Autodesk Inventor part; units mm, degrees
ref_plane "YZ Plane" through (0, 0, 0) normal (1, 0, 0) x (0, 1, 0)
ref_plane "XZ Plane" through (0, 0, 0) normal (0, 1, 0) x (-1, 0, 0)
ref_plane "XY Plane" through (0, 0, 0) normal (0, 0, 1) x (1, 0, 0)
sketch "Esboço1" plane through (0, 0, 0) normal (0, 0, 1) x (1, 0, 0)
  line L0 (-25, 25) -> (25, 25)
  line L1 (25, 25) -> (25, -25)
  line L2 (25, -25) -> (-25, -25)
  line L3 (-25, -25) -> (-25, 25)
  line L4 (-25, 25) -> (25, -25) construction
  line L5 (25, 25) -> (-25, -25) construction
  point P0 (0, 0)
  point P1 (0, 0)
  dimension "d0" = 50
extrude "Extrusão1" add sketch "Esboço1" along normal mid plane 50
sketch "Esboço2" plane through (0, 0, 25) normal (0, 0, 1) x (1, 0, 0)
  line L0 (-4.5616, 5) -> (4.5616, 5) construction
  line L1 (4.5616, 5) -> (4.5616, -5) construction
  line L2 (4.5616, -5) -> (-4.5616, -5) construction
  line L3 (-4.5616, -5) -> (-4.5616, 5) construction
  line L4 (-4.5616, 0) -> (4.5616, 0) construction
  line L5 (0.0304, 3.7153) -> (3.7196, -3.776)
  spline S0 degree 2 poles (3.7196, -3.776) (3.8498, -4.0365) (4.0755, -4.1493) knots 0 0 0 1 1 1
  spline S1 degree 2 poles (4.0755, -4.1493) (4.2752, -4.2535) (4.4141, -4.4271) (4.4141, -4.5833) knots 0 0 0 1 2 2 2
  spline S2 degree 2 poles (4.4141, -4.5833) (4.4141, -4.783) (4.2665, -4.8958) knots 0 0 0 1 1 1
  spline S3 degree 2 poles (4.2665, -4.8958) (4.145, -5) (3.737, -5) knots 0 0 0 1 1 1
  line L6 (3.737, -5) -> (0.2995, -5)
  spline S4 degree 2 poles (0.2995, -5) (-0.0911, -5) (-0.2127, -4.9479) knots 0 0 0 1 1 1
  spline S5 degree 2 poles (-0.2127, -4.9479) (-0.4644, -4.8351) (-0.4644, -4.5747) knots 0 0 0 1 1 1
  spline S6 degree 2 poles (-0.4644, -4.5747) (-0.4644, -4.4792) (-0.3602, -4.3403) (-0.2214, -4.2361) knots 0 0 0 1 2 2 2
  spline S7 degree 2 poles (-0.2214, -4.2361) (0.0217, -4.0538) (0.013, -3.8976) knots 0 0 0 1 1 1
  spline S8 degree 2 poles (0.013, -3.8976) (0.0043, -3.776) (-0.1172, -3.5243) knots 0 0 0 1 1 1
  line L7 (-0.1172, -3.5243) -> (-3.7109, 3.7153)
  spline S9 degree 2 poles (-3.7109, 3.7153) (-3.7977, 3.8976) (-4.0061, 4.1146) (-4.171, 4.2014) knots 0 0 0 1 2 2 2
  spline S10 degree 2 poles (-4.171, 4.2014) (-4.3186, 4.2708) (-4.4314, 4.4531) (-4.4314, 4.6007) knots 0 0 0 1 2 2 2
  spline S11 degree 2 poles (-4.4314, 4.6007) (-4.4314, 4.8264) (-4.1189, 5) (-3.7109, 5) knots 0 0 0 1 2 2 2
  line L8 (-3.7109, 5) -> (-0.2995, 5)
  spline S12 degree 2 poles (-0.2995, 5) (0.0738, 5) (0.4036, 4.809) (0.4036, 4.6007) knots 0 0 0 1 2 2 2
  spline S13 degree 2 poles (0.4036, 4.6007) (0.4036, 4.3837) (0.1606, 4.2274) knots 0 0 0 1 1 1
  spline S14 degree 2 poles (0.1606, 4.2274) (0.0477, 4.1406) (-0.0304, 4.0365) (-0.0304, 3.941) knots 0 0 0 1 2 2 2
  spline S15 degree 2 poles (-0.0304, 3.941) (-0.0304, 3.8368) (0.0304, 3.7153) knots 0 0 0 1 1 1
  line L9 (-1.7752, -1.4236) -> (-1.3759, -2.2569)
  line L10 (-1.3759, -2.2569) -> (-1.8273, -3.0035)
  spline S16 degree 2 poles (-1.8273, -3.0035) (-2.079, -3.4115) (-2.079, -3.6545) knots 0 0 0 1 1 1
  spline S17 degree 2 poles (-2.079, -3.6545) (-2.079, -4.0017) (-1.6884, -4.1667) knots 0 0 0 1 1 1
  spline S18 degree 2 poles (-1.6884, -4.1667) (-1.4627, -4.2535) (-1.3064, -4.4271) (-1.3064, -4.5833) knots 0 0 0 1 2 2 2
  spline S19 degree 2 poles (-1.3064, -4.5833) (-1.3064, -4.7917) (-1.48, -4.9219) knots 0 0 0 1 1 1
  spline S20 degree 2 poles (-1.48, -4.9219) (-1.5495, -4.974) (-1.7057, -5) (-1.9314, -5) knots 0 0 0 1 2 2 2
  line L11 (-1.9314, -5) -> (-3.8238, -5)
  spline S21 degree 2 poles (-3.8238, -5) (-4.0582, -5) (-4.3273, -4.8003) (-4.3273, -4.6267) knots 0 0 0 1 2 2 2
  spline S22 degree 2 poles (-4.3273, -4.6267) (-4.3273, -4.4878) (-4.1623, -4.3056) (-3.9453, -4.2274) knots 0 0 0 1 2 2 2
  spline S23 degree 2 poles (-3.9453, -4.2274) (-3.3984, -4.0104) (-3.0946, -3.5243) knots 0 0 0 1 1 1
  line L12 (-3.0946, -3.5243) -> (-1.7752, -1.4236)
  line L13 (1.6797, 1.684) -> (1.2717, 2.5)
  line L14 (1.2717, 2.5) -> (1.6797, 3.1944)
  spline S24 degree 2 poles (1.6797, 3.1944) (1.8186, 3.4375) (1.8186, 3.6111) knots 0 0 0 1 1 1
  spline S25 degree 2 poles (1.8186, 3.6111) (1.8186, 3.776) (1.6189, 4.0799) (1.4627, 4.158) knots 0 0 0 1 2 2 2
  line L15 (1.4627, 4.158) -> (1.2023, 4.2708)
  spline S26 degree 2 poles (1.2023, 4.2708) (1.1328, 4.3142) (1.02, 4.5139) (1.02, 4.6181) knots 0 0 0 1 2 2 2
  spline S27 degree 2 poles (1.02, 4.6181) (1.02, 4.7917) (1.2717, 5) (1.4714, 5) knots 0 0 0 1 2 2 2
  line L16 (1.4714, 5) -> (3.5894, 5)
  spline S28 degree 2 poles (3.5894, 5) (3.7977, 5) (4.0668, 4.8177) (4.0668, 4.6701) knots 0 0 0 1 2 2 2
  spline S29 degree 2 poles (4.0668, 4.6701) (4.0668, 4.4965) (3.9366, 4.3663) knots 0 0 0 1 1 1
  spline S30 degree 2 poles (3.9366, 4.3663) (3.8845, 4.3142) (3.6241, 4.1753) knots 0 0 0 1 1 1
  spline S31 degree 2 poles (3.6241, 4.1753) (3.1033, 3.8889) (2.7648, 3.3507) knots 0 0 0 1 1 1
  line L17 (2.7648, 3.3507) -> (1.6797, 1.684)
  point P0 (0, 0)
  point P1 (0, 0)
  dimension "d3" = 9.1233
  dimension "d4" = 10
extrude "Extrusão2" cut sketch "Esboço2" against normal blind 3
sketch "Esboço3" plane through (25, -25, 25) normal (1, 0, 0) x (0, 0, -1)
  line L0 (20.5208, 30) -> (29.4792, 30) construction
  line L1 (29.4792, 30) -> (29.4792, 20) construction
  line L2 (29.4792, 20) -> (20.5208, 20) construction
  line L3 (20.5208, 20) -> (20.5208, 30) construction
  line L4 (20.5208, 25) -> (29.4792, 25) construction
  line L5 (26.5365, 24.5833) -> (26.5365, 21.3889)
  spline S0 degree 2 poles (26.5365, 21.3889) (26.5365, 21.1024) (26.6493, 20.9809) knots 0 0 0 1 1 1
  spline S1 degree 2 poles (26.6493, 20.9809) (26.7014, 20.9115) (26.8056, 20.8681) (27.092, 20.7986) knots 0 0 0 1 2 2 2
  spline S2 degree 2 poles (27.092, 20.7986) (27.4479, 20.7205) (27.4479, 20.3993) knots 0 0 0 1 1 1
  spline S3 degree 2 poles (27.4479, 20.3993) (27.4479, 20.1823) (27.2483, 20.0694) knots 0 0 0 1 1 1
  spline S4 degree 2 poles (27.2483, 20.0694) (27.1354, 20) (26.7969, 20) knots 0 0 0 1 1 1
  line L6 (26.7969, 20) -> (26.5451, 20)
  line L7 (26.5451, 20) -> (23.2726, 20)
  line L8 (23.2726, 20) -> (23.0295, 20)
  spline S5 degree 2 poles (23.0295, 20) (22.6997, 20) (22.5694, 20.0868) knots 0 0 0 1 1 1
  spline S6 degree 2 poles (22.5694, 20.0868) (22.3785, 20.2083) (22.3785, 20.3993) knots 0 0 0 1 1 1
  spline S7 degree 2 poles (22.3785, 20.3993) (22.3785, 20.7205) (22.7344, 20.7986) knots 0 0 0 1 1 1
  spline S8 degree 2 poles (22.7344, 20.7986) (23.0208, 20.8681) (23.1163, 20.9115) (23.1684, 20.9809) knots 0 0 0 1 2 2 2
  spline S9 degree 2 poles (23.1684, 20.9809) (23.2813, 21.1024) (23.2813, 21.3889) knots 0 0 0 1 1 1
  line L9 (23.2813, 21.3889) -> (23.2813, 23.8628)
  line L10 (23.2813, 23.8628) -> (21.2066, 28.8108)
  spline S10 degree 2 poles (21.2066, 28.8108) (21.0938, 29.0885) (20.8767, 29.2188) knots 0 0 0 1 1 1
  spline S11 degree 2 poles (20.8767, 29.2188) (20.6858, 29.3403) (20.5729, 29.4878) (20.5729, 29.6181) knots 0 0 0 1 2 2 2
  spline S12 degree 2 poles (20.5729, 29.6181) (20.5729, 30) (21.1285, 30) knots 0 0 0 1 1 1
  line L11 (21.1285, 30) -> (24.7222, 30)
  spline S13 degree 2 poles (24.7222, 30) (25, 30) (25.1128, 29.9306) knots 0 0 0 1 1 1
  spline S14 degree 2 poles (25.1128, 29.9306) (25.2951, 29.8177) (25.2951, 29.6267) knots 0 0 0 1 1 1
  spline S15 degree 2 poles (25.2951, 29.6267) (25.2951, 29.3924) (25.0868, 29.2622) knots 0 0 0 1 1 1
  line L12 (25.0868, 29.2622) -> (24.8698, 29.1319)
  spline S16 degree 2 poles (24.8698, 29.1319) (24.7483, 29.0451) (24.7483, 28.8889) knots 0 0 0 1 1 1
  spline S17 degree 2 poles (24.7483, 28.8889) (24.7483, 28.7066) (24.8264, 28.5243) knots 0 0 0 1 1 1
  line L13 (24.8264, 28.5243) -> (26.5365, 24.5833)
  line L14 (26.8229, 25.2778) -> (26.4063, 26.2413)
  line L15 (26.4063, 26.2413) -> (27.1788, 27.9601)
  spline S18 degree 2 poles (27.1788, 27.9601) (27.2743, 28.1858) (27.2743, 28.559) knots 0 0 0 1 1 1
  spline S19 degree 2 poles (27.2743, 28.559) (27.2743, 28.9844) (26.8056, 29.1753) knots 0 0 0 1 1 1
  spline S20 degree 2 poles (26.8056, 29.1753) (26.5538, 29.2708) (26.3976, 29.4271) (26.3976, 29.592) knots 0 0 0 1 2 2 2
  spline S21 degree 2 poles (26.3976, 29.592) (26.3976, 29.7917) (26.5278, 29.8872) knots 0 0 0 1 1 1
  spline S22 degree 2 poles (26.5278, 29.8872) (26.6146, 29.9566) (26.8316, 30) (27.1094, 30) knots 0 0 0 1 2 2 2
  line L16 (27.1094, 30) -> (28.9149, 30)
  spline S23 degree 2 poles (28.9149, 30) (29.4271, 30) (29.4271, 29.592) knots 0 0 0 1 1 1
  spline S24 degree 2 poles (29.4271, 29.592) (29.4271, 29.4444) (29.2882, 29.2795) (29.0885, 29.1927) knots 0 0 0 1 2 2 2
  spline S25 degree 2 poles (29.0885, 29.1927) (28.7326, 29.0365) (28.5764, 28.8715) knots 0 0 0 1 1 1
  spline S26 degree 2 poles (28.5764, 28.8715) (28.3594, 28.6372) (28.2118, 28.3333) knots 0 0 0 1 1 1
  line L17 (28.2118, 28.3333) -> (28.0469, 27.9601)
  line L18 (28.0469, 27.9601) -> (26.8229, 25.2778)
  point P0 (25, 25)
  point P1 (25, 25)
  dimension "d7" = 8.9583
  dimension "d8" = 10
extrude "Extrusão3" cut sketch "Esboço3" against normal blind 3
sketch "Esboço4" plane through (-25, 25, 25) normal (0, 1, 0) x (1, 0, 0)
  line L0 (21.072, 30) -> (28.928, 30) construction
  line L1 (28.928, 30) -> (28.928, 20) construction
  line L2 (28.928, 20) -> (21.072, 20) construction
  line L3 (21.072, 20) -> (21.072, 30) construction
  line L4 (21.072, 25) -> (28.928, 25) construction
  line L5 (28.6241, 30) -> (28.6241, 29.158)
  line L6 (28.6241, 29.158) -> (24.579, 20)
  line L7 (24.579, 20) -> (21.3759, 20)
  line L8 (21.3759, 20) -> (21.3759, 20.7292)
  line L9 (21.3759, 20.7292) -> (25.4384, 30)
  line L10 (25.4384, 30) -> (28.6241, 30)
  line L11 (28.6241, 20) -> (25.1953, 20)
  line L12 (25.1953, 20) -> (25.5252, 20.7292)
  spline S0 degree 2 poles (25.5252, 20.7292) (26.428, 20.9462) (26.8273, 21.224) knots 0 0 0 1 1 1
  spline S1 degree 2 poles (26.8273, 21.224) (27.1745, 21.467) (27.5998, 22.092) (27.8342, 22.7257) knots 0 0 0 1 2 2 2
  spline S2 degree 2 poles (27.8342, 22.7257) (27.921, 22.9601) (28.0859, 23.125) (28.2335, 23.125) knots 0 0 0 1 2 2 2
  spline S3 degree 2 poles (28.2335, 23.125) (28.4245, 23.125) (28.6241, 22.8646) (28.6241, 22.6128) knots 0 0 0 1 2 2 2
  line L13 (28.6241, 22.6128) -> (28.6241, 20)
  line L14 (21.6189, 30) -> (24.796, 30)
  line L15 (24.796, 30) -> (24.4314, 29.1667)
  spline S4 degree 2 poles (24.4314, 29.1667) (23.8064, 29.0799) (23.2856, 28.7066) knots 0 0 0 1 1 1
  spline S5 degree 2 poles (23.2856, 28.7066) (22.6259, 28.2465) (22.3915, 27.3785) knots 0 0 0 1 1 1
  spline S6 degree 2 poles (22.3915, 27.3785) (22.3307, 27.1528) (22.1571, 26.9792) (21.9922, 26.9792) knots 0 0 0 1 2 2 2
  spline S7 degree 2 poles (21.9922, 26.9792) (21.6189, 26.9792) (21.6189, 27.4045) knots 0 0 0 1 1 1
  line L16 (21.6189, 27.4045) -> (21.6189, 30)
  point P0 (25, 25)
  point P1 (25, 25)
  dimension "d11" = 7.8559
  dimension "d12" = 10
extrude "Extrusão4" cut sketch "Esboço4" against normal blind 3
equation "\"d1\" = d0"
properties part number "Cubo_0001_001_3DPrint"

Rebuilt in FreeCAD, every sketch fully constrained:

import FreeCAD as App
import Part
import Sketcher
from FreeCAD import Vector

doc = App.newDocument("Part")
params = doc.addObject("Spreadsheet::Sheet", "Params")
for row, (alias, value) in enumerate([
    ("sketch1_width", "50 mm"),
    ("pad1_length", "50 mm"),
    ("pocket1_length", "3 mm"),
    ("pocket2_length", "3 mm"),
    ("pocket3_length", "3 mm"),
], start=1):
    params.set(f"A{row}", alias)
    params.set(f"B{row}", "=" + value)
    params.setAlias(f"B{row}", alias)

body = doc.addObject("PartDesign::Body", "Body")

sketch1 = body.newObject("Sketcher::SketchObject", "Sketch")
sketch1.AttachmentSupport = (doc.getObject("XY_Plane"), [""])
sketch1.MapMode = "FlatFace"
sketch1.addGeometry([
    Part.LineSegment(Vector(25, 25, 0), Vector(-25, 25, 0)),
    Part.LineSegment(Vector(-25, 25, 0), Vector(-25, -25, 0)),
    Part.LineSegment(Vector(-25, -25, 0), Vector(25, -25, 0)),
    Part.LineSegment(Vector(25, -25, 0), Vector(25, 25, 0)),
], False)
sketch1.addConstraint([
    Sketcher.Constraint("Coincident", 0, 2, 1, 1),
    Sketcher.Constraint("Coincident", 1, 2, 2, 1),
    Sketcher.Constraint("Coincident", 2, 2, 3, 1),
    Sketcher.Constraint("Coincident", 3, 2, 0, 1),
    Sketcher.Constraint("Horizontal", 0),
    Sketcher.Constraint("Vertical", 1),
    Sketcher.Constraint("Horizontal", 2),
    Sketcher.Constraint("Vertical", 3),
    Sketcher.Constraint("Symmetric", 0, 2, 2, 2, -1, 1),
    Sketcher.Constraint("Equal", 2, 1),
    Sketcher.Constraint("DistanceX", 0, 2, 0, 1, 50.0),
])
sketch1.setExpression("Constraints[10]", "Params.sketch1_width")
pad1 = body.newObject("PartDesign::Pad", "Pad")
pad1.Profile = sketch1
pad1.setExpression("Length", "Params.pad1_length")
pad1.Midplane = True

sketch2 = body.newObject("Sketcher::SketchObject", "Sketch001")
sketch2.AttachmentSupport = (doc.getObject("XY_Plane"), [""])
sketch2.MapMode = "FlatFace"
sketch2.AttachmentOffset = App.Placement(Vector(0, 0, 25), App.Rotation())
sketch2.addGeometry([
    Part.LineSegment(Vector(3.7196, -3.776, 0), Vector(0.0304, 3.7153, 0)),
    Part.BSplineCurve([Vector(-0.0304, 3.941, 0), Vector(-0.0304, 3.8368, 0), Vector(0.0304, 3.7153, 0)], [3, 3], [0, 1], False, 2, [1, 1, 1], False),
    Part.BSplineCurve([Vector(0.1606, 4.2274, 0), Vector(0.0477, 4.1406, 0), Vector(-0.0304, 4.0365, 0), Vector(-0.0304, 3.941, 0)], [3, 1, 3], [0, 1, 2], False, 2, [1, 1, 1, 1], False),
    Part.BSplineCurve([Vector(0.4036, 4.6007, 0), Vector(0.4036, 4.3837, 0), Vector(0.1606, 4.2274, 0)], [3, 3], [0, 1], False, 2, [1, 1, 1], False),
    Part.BSplineCurve([Vector(-0.2995, 5, 0), Vector(0.0738, 5, 0), Vector(0.4036, 4.809, 0), Vector(0.4036, 4.6007, 0)], [3, 1, 3], [0, 1, 2], False, 2, [1, 1, 1, 1], False),
    Part.LineSegment(Vector(-0.2995, 5, 0), Vector(-3.7109, 5, 0)),
    Part.BSplineCurve([Vector(-4.4314, 4.6007, 0), Vector(-4.4314, 4.8264, 0), Vector(-4.1189, 5, 0), Vector(-3.7109, 5, 0)], [3, 1, 3], [0, 1, 2], False, 2, [1, 1, 1, 1], False),
    Part.BSplineCurve([Vector(-4.171, 4.2014, 0), Vector(-4.3186, 4.2708, 0), Vector(-4.4314, 4.4531, 0), Vector(-4.4314, 4.6007, 0)], [3, 1, 3], [0, 1, 2], False, 2, [1, 1, 1, 1], False),
    Part.BSplineCurve([Vector(-3.7109, 3.7153, 0), Vector(-3.7977, 3.8976, 0), Vector(-4.0061, 4.1146, 0), Vector(-4.171, 4.2014, 0)], [3, 1, 3], [0, 1, 2], False, 2, [1, 1, 1, 1], False),
    Part.LineSegment(Vector(-3.7109, 3.7153, 0), Vector(-0.1172, -3.5243, 0)),
    Part.BSplineCurve([Vector(0.013, -3.8976, 0), Vector(0.0043, -3.776, 0), Vector(-0.1172, -3.5243, 0)], [3, 3], [0, 1], False, 2, [1, 1, 1], False),
    Part.BSplineCurve([Vector(-0.2214, -4.2361, 0), Vector(0.0217, -4.0538, 0), Vector(0.013, -3.8976, 0)], [3, 3], [0, 1], False, 2, [1, 1, 1], False),
    Part.BSplineCurve([Vector(-0.4644, -4.5747, 0), Vector(-0.4644, -4.4792, 0), Vector(-0.3602, -4.3403, 0), Vector(-0.2214, -4.2361, 0)], [3, 1, 3], [0, 1, 2], False, 2, [1, 1, 1, 1], False),
    Part.BSplineCurve([Vector(-0.2127, -4.9479, 0), Vector(-0.4644, -4.8351, 0), Vector(-0.4644, -4.5747, 0)], [3, 3], [0, 1], False, 2, [1, 1, 1], False),
    Part.BSplineCurve([Vector(0.2995, -5, 0), Vector(-0.0911, -5, 0), Vector(-0.2127, -4.9479, 0)], [3, 3], [0, 1], False, 2, [1, 1, 1], False),
    Part.LineSegment(Vector(0.2995, -5, 0), Vector(3.737, -5, 0)),
    Part.BSplineCurve([Vector(4.2665, -4.8958, 0), Vector(4.145, -5, 0), Vector(3.737, -5, 0)], [3, 3], [0, 1], False, 2, [1, 1, 1], False),
    Part.BSplineCurve([Vector(4.4141, -4.5833, 0), Vector(4.4141, -4.783, 0), Vector(4.2665, -4.8958, 0)], [3, 3], [0, 1], False, 2, [1, 1, 1], False),
    Part.BSplineCurve([Vector(4.0755, -4.1493, 0), Vector(4.2752, -4.2535, 0), Vector(4.4141, -4.4271, 0), Vector(4.4141, -4.5833, 0)], [3, 1, 3], [0, 1, 2], False, 2, [1, 1, 1, 1], False),
    Part.BSplineCurve([Vector(3.7196, -3.776, 0), Vector(3.8498, -4.0365, 0), Vector(4.0755, -4.1493, 0)], [3, 3], [0, 1], False, 2, [1, 1, 1], False),
    Part.LineSegment(Vector(-1.3759, -2.2569, 0), Vector(-1.7752, -1.4236, 0)),
    Part.LineSegment(Vector(-1.7752, -1.4236, 0), Vector(-3.0946, -3.5243, 0)),
    Part.BSplineCurve([Vector(-3.9453, -4.2274, 0), Vector(-3.3984, -4.0104, 0), Vector(-3.0946, -3.5243, 0)], [3, 3], [0, 1], False, 2, [1, 1, 1], False),
    Part.BSplineCurve([Vector(-4.3273, -4.6267, 0), Vector(-4.3273, -4.4878, 0), Vector(-4.1623, -4.3056, 0), Vector(-3.9453, -4.2274, 0)], [3, 1, 3], [0, 1, 2], False, 2, [1, 1, 1, 1], False),
    Part.BSplineCurve([Vector(-3.8238, -5, 0), Vector(-4.0582, -5, 0), Vector(-4.3273, -4.8003, 0), Vector(-4.3273, -4.6267, 0)], [3, 1, 3], [0, 1, 2], False, 2, [1, 1, 1, 1], False),
    Part.LineSegment(Vector(-3.8238, -5, 0), Vector(-1.9314, -5, 0)),
    Part.BSplineCurve([Vector(-1.48, -4.9219, 0), Vector(-1.5495, -4.974, 0), Vector(-1.7057, -5, 0), Vector(-1.9314, -5, 0)], [3, 1, 3], [0, 1, 2], False, 2, [1, 1, 1, 1], False),
    Part.BSplineCurve([Vector(-1.3064, -4.5833, 0), Vector(-1.3064, -4.7917, 0), Vector(-1.48, -4.9219, 0)], [3, 3], [0, 1], False, 2, [1, 1, 1], False),
    Part.BSplineCurve([Vector(-1.6884, -4.1667, 0), Vector(-1.4627, -4.2535, 0), Vector(-1.3064, -4.4271, 0), Vector(-1.3064, -4.5833, 0)], [3, 1, 3], [0, 1, 2], False, 2, [1, 1, 1, 1], False),
    Part.BSplineCurve([Vector(-2.079, -3.6545, 0), Vector(-2.079, -4.0017, 0), Vector(-1.6884, -4.1667, 0)], [3, 3], [0, 1], False, 2, [1, 1, 1], False),
    Part.BSplineCurve([Vector(-1.8273, -3.0035, 0), Vector(-2.079, -3.4115, 0), Vector(-2.079, -3.6545, 0)], [3, 3], [0, 1], False, 2, [1, 1, 1], False),
    Part.LineSegment(Vector(-1.8273, -3.0035, 0), Vector(-1.3759, -2.2569, 0)),
    Part.LineSegment(Vector(1.2717, 2.5, 0), Vector(1.6797, 1.684, 0)),
    Part.LineSegment(Vector(1.6797, 1.684, 0), Vector(2.7648, 3.3507, 0)),
    Part.BSplineCurve([Vector(3.6241, 4.1753, 0), Vector(3.1033, 3.8889, 0), Vector(2.7648, 3.3507, 0)], [3, 3], [0, 1], False, 2, [1, 1, 1], False),
    Part.BSplineCurve([Vector(3.9366, 4.3663, 0), Vector(3.8845, 4.3142, 0), Vector(3.6241, 4.1753, 0)], [3, 3], [0, 1], False, 2, [1, 1, 1], False),
    Part.BSplineCurve([Vector(4.0668, 4.6701, 0), Vector(4.0668, 4.4965, 0), Vector(3.9366, 4.3663, 0)], [3, 3], [0, 1], False, 2, [1, 1, 1], False),
    Part.BSplineCurve([Vector(3.5894, 5, 0), Vector(3.7977, 5, 0), Vector(4.0668, 4.8177, 0), Vector(4.0668, 4.6701, 0)], [3, 1, 3], [0, 1, 2], False, 2, [1, 1, 1, 1], False),
    Part.LineSegment(Vector(3.5894, 5, 0), Vector(1.4714, 5, 0)),
    Part.BSplineCurve([Vector(1.02, 4.6181, 0), Vector(1.02, 4.7917, 0), Vector(1.2717, 5, 0), Vector(1.4714, 5, 0)], [3, 1, 3], [0, 1, 2], False, 2, [1, 1, 1, 1], False),
    Part.BSplineCurve([Vector(1.2023, 4.2708, 0), Vector(1.1328, 4.3142, 0), Vector(1.02, 4.5139, 0), Vector(1.02, 4.6181, 0)], [3, 1, 3], [0, 1, 2], False, 2, [1, 1, 1, 1], False),
    Part.LineSegment(Vector(1.2023, 4.2708, 0), Vector(1.4627, 4.158, 0)),
    Part.BSplineCurve([Vector(1.8186, 3.6111, 0), Vector(1.8186, 3.776, 0), Vector(1.6189, 4.0799, 0), Vector(1.4627, 4.158, 0)], [3, 1, 3], [0, 1, 2], False, 2, [1, 1, 1, 1], False),
    Part.BSplineCurve([Vector(1.6797, 3.1944, 0), Vector(1.8186, 3.4375, 0), Vector(1.8186, 3.6111, 0)], [3, 3], [0, 1], False, 2, [1, 1, 1], False),
    Part.LineSegment(Vector(1.6797, 3.1944, 0), Vector(1.2717, 2.5, 0)),
], False)
sketch2.addConstraint([
    Sketcher.Constraint("Block", 1),
    Sketcher.Constraint("Block", 2),
    Sketcher.Constraint("Block", 3),
    Sketcher.Constraint("Block", 4),
    Sketcher.Constraint("Block", 6),
    Sketcher.Constraint("Block", 7),
    Sketcher.Constraint("Block", 8),
    Sketcher.Constraint("Block", 10),
    Sketcher.Constraint("Block", 11),
    Sketcher.Constraint("Block", 12),
    Sketcher.Constraint("Block", 13),
    Sketcher.Constraint("Block", 14),
    Sketcher.Constraint("Block", 16),
    Sketcher.Constraint("Block", 17),
    Sketcher.Constraint("Block", 18),
    Sketcher.Constraint("Block", 19),
    Sketcher.Constraint("Block", 22),
    Sketcher.Constraint("Block", 23),
    Sketcher.Constraint("Block", 24),
    Sketcher.Constraint("Block", 26),
    Sketcher.Constraint("Block", 27),
    Sketcher.Constraint("Block", 28),
    Sketcher.Constraint("Block", 29),
    Sketcher.Constraint("Block", 30),
    Sketcher.Constraint("Block", 34),
    Sketcher.Constraint("Block", 35),
    Sketcher.Constraint("Block", 36),
    Sketcher.Constraint("Block", 37),
    Sketcher.Constraint("Block", 39),
    Sketcher.Constraint("Block", 40),
    Sketcher.Constraint("Block", 42),
    Sketcher.Constraint("Block", 43),
    Sketcher.Constraint("Coincident", 0, 2, 1, 2),
    Sketcher.Constraint("Coincident", 4, 1, 5, 1),
    Sketcher.Constraint("Coincident", 5, 2, 6, 2),
    Sketcher.Constraint("Coincident", 8, 1, 9, 1),
    Sketcher.Constraint("Coincident", 9, 2, 10, 2),
    Sketcher.Constraint("Coincident", 14, 1, 15, 1),
    Sketcher.Constraint("Coincident", 15, 2, 16, 2),
    Sketcher.Constraint("Coincident", 19, 1, 0, 1),
    Sketcher.Constraint("Coincident", 20, 2, 21, 1),
    Sketcher.Constraint("Coincident", 21, 2, 22, 2),
    Sketcher.Constraint("Coincident", 24, 1, 25, 1),
    Sketcher.Constraint("Coincident", 25, 2, 26, 2),
    Sketcher.Constraint("Coincident", 30, 1, 31, 1),
    Sketcher.Constraint("Coincident", 31, 2, 20, 1),
    Sketcher.Constraint("Coincident", 32, 2, 33, 1),
    Sketcher.Constraint("Coincident", 33, 2, 34, 2),
    Sketcher.Constraint("Coincident", 37, 1, 38, 1),
    Sketcher.Constraint("Coincident", 38, 2, 39, 2),
    Sketcher.Constraint("Coincident", 40, 1, 41, 1),
    Sketcher.Constraint("Coincident", 41, 2, 42, 2),
    Sketcher.Constraint("Coincident", 43, 1, 44, 1),
    Sketcher.Constraint("Coincident", 44, 2, 32, 1),
    Sketcher.Constraint("DistanceY", -1, 1, 44, 2, 2.5),
    Sketcher.Constraint("DistanceX", 20, 2, 33, 2, 4.54),
    Sketcher.Constraint("Distance", 20, 0.924),
    Sketcher.Constraint("DistanceX", 31, 2, -1, 1, 1.376),
    Sketcher.Constraint("DistanceY", 31, 2, -1, 1, 2.257),
    Sketcher.Constraint("DistanceY", -1, 1, 32, 2, 1.684),
    Sketcher.Constraint("DistanceX", 20, 2, 32, 2, 3.455),
    Sketcher.Constraint("DistanceX", 44, 2, 32, 2, 0.408),
])
pocket1 = body.newObject("PartDesign::Pocket", "Pocket")
pocket1.Profile = sketch2
pocket1.setExpression("Length", "Params.pocket1_length")

sketch3 = body.newObject("Sketcher::SketchObject", "Sketch002")
sketch3.AttachmentSupport = (doc.getObject("YZ_Plane"), [""])
sketch3.MapMode = "FlatFace"
sketch3.AttachmentOffset = App.Placement(Vector(0, 0, 25), App.Rotation())
sketch3.addGeometry([
    Part.LineSegment(Vector(-3.6111, -1.5365, 0), Vector(-0.4167, -1.5365, 0)),
    Part.LineSegment(Vector(-0.4167, -1.5365, 0), Vector(3.5243, 0.1736, 0)),
    Part.BSplineCurve([Vector(3.8889, 0.2517, 0), Vector(3.7066, 0.2517, 0), Vector(3.5243, 0.1736, 0)], [3, 3], [0, 1], False, 2, [1, 1, 1], False),
    Part.BSplineCurve([Vector(4.1319, 0.1302, 0), Vector(4.0451, 0.2517, 0), Vector(3.8889, 0.2517, 0)], [3, 3], [0, 1], False, 2, [1, 1, 1], False),
    Part.LineSegment(Vector(4.1319, 0.1302, 0), Vector(4.2622, -0.0868, 0)),
    Part.BSplineCurve([Vector(4.6267, -0.2951, 0), Vector(4.3924, -0.2951, 0), Vector(4.2622, -0.0868, 0)], [3, 3], [0, 1], False, 2, [1, 1, 1], False),
    Part.BSplineCurve([Vector(4.9306, -0.1128, 0), Vector(4.8177, -0.2951, 0), Vector(4.6267, -0.2951, 0)], [3, 3], [0, 1], False, 2, [1, 1, 1], False),
    Part.BSplineCurve([Vector(5, 0.2778, 0), Vector(5, 0, 0), Vector(4.9306, -0.1128, 0)], [3, 3], [0, 1], False, 2, [1, 1, 1], False),
    Part.LineSegment(Vector(5, 0.2778, 0), Vector(5, 3.8715, 0)),
    Part.BSplineCurve([Vector(4.6181, 4.4271, 0), Vector(5, 4.4271, 0), Vector(5, 3.8715, 0)], [3, 3], [0, 1], False, 2, [1, 1, 1], False),
    Part.BSplineCurve([Vector(4.2188, 4.1233, 0), Vector(4.3403, 4.3142, 0), Vector(4.4878, 4.4271, 0), Vector(4.6181, 4.4271, 0)], [3, 1, 3], [0, 1, 2], False, 2, [1, 1, 1, 1], False),
    Part.BSplineCurve([Vector(3.8108, 3.7934, 0), Vector(4.0885, 3.9062, 0), Vector(4.2188, 4.1233, 0)], [3, 3], [0, 1], False, 2, [1, 1, 1], False),
    Part.LineSegment(Vector(3.8108, 3.7934, 0), Vector(-1.1372, 1.7187, 0)),
    Part.LineSegment(Vector(-1.1372, 1.7187, 0), Vector(-3.6111, 1.7187, 0)),
    Part.BSplineCurve([Vector(-4.0191, 1.8316, 0), Vector(-3.8976, 1.7187, 0), Vector(-3.6111, 1.7187, 0)], [3, 3], [0, 1], False, 2, [1, 1, 1], False),
    Part.BSplineCurve([Vector(-4.2014, 2.2656, 0), Vector(-4.1319, 1.9792, 0), Vector(-4.0885, 1.8837, 0), Vector(-4.0191, 1.8316, 0)], [3, 1, 3], [0, 1, 2], False, 2, [1, 1, 1, 1], False),
    Part.BSplineCurve([Vector(-4.6007, 2.6215, 0), Vector(-4.2795, 2.6215, 0), Vector(-4.2014, 2.2656, 0)], [3, 3], [0, 1], False, 2, [1, 1, 1], False),
    Part.BSplineCurve([Vector(-4.9132, 2.4306, 0), Vector(-4.7917, 2.6215, 0), Vector(-4.6007, 2.6215, 0)], [3, 3], [0, 1], False, 2, [1, 1, 1], False),
    Part.BSplineCurve([Vector(-5, 1.9705, 0), Vector(-5, 2.3003, 0), Vector(-4.9132, 2.4306, 0)], [3, 3], [0, 1], False, 2, [1, 1, 1], False),
    Part.LineSegment(Vector(-5, 1.9705, 0), Vector(-5, -1.7969, 0)),
    Part.BSplineCurve([Vector(-4.9306, -2.2483, 0), Vector(-5, -2.1354, 0), Vector(-5, -1.7969, 0)], [3, 3], [0, 1], False, 2, [1, 1, 1], False),
    Part.BSplineCurve([Vector(-4.6007, -2.4479, 0), Vector(-4.8177, -2.4479, 0), Vector(-4.9306, -2.2483, 0)], [3, 3], [0, 1], False, 2, [1, 1, 1], False),
    Part.BSplineCurve([Vector(-4.2014, -2.092, 0), Vector(-4.2795, -2.4479, 0), Vector(-4.6007, -2.4479, 0)], [3, 3], [0, 1], False, 2, [1, 1, 1], False),
    Part.BSplineCurve([Vector(-4.0191, -1.6493, 0), Vector(-4.0885, -1.7014, 0), Vector(-4.1319, -1.8056, 0), Vector(-4.2014, -2.092, 0)], [3, 1, 3], [0, 1, 2], False, 2, [1, 1, 1, 1], False),
    Part.BSplineCurve([Vector(-3.6111, -1.5365, 0), Vector(-3.8976, -1.5365, 0), Vector(-4.0191, -1.6493, 0)], [3, 3], [0, 1], False, 2, [1, 1, 1], False),
    Part.LineSegment(Vector(1.2413, -1.4063, 0), Vector(0.2778, -1.8229, 0)),
    Part.LineSegment(Vector(0.2778, -1.8229, 0), Vector(2.9601, -3.0469, 0)),
    Part.LineSegment(Vector(2.9601, -3.0469, 0), Vector(3.3333, -3.2118, 0)),
    Part.BSplineCurve([Vector(3.8715, -3.5764, 0), Vector(3.6372, -3.3594, 0), Vector(3.3333, -3.2118, 0)], [3, 3], [0, 1], False, 2, [1, 1, 1], False),
    Part.BSplineCurve([Vector(4.1927, -4.0885, 0), Vector(4.0365, -3.7326, 0), Vector(3.8715, -3.5764, 0)], [3, 3], [0, 1], False, 2, [1, 1, 1], False),
    Part.BSplineCurve([Vector(4.592, -4.4271, 0), Vector(4.4444, -4.4271, 0), Vector(4.2795, -4.2882, 0), Vector(4.1927, -4.0885, 0)], [3, 1, 3], [0, 1, 2], False, 2, [1, 1, 1, 1], False),
    Part.BSplineCurve([Vector(5, -3.9149, 0), Vector(5, -4.4271, 0), Vector(4.592, -4.4271, 0)], [3, 3], [0, 1], False, 2, [1, 1, 1], False),
    Part.LineSegment(Vector(5, -3.9149, 0), Vector(5, -2.1094, 0)),
    Part.BSplineCurve([Vector(4.8872, -1.5278, 0), Vector(4.9566, -1.6146, 0), Vector(5, -1.8316, 0), Vector(5, -2.1094, 0)], [3, 1, 3], [0, 1, 2], False, 2, [1, 1, 1, 1], False),
    Part.BSplineCurve([Vector(4.592, -1.3976, 0), Vector(4.7917, -1.3976, 0), Vector(4.8872, -1.5278, 0)], [3, 3], [0, 1], False, 2, [1, 1, 1], False),
    Part.BSplineCurve([Vector(4.1753, -1.8056, 0), Vector(4.2708, -1.5538, 0), Vector(4.4271, -1.3976, 0), Vector(4.592, -1.3976, 0)], [3, 1, 3], [0, 1, 2], False, 2, [1, 1, 1, 1], False),
    Part.BSplineCurve([Vector(3.559, -2.2743, 0), Vector(3.9844, -2.2743, 0), Vector(4.1753, -1.8056, 0)], [3, 3], [0, 1], False, 2, [1, 1, 1], False),
    Part.BSplineCurve([Vector(2.9601, -2.1788, 0), Vector(3.1858, -2.2743, 0), Vector(3.559, -2.2743, 0)], [3, 3], [0, 1], False, 2, [1, 1, 1], False),
    Part.LineSegment(Vector(2.9601, -2.1788, 0), Vector(1.2413, -1.4063, 0)),
], False)
sketch3.addConstraint([
    Sketcher.Constraint("Block", 2),
    Sketcher.Constraint("Block", 3),
    Sketcher.Constraint("Block", 5),
    Sketcher.Constraint("Block", 6),
    Sketcher.Constraint("Block", 7),
    Sketcher.Constraint("Block", 9),
    Sketcher.Constraint("Block", 10),
    Sketcher.Constraint("Block", 11),
    Sketcher.Constraint("Block", 14),
    Sketcher.Constraint("Block", 15),
    Sketcher.Constraint("Block", 16),
    Sketcher.Constraint("Block", 17),
    Sketcher.Constraint("Block", 18),
    Sketcher.Constraint("Block", 20),
    Sketcher.Constraint("Block", 21),
    Sketcher.Constraint("Block", 22),
    Sketcher.Constraint("Block", 23),
    Sketcher.Constraint("Block", 24),
    Sketcher.Constraint("Block", 28),
    Sketcher.Constraint("Block", 29),
    Sketcher.Constraint("Block", 30),
    Sketcher.Constraint("Block", 31),
    Sketcher.Constraint("Block", 33),
    Sketcher.Constraint("Block", 34),
    Sketcher.Constraint("Block", 35),
    Sketcher.Constraint("Block", 36),
    Sketcher.Constraint("Block", 37),
    Sketcher.Constraint("Coincident", 0, 2, 1, 1),
    Sketcher.Constraint("Coincident", 1, 2, 2, 2),
    Sketcher.Constraint("Coincident", 3, 1, 4, 1),
    Sketcher.Constraint("Coincident", 4, 2, 5, 2),
    Sketcher.Constraint("Coincident", 7, 1, 8, 1),
    Sketcher.Constraint("Coincident", 8, 2, 9, 2),
    Sketcher.Constraint("Coincident", 11, 1, 12, 1),
    Sketcher.Constraint("Coincident", 12, 2, 13, 1),
    Sketcher.Constraint("Coincident", 13, 2, 14, 2),
    Sketcher.Constraint("Coincident", 18, 1, 19, 1),
    Sketcher.Constraint("Coincident", 19, 2, 20, 2),
    Sketcher.Constraint("Coincident", 24, 1, 0, 1),
    Sketcher.Constraint("Coincident", 25, 2, 26, 1),
    Sketcher.Constraint("Coincident", 26, 2, 27, 1),
    Sketcher.Constraint("Coincident", 27, 2, 28, 2),
    Sketcher.Constraint("Coincident", 31, 1, 32, 1),
    Sketcher.Constraint("Coincident", 32, 2, 33, 2),
    Sketcher.Constraint("Coincident", 37, 1, 38, 1),
    Sketcher.Constraint("Coincident", 38, 2, 25, 1),
    Sketcher.Constraint("Horizontal", 0),
    Sketcher.Constraint("Horizontal", 13),
    Sketcher.Constraint("DistanceX", 13, 2, 13, 1, 2.474),
    Sketcher.Constraint("DistanceX", -1, 1, 26, 2, 2.96),
    Sketcher.Constraint("DistanceY", 26, 2, 4, 2, 2.96),
    Sketcher.Constraint("DistanceX", 0, 2, 27, 2, 3.75),
    Sketcher.Constraint("DistanceY", 38, 2, 1, 2, 1.58),
    Sketcher.Constraint("DistanceY", 25, 2, -1, 1, 1.823),
    Sketcher.Constraint("DistanceX", 12, 2, 25, 2, 1.415),
    Sketcher.Constraint("DistanceX", 0, 2, 38, 2, 1.658),
])
pocket2 = body.newObject("PartDesign::Pocket", "Pocket001")
pocket2.Profile = sketch3
pocket2.setExpression("Length", "Params.pocket2_length")

sketch4 = body.newObject("Sketcher::SketchObject", "Sketch003")
sketch4.AttachmentSupport = (doc.getObject("XZ_Plane"), [""])
sketch4.MapMode = "FlatFace"
sketch4.AttachmentOffset = App.Placement(Vector(0, 0, -25), App.Rotation())
sketch4.addGeometry([
    Part.LineSegment(Vector(3.6241, -4.158, 0), Vector(3.6241, -5, 0)),
    Part.LineSegment(Vector(3.6241, -5, 0), Vector(0.4384, -5, 0)),
    Part.LineSegment(Vector(0.4384, -5, 0), Vector(-3.6241, 4.2708, 0)),
    Part.LineSegment(Vector(-3.6241, 4.2708, 0), Vector(-3.6241, 5, 0)),
    Part.LineSegment(Vector(-3.6241, 5, 0), Vector(-0.421, 5, 0)),
    Part.LineSegment(Vector(-0.421, 5, 0), Vector(3.6241, -4.158, 0)),
    Part.LineSegment(Vector(0.1953, 5, 0), Vector(3.6241, 5, 0)),
    Part.LineSegment(Vector(3.6241, 5, 0), Vector(3.6241, 2.3872, 0)),
    Part.BSplineCurve([Vector(3.2335, 1.875, 0), Vector(3.4245, 1.875, 0), Vector(3.6241, 2.1354, 0), Vector(3.6241, 2.3872, 0)], [3, 1, 3], [0, 1, 2], False, 2, [1, 1, 1, 1], False),
    Part.BSplineCurve([Vector(2.8342, 2.2743, 0), Vector(2.921, 2.0399, 0), Vector(3.0859, 1.875, 0), Vector(3.2335, 1.875, 0)], [3, 1, 3], [0, 1, 2], False, 2, [1, 1, 1, 1], False),
    Part.BSplineCurve([Vector(1.8273, 3.776, 0), Vector(2.1745, 3.533, 0), Vector(2.5998, 2.908, 0), Vector(2.8342, 2.2743, 0)], [3, 1, 3], [0, 1, 2], False, 2, [1, 1, 1, 1], False),
    Part.BSplineCurve([Vector(0.5252, 4.2708, 0), Vector(1.428, 4.0538, 0), Vector(1.8273, 3.776, 0)], [3, 3], [0, 1], False, 2, [1, 1, 1], False),
    Part.LineSegment(Vector(0.5252, 4.2708, 0), Vector(0.1953, 5, 0)),
    Part.LineSegment(Vector(-0.204, -5, 0), Vector(-3.3811, -5, 0)),
    Part.LineSegment(Vector(-3.3811, -5, 0), Vector(-3.3811, -2.4045, 0)),
    Part.BSplineCurve([Vector(-3.0078, -1.9792, 0), Vector(-3.3811, -1.9792, 0), Vector(-3.3811, -2.4045, 0)], [3, 3], [0, 1], False, 2, [1, 1, 1], False),
    Part.BSplineCurve([Vector(-2.6085, -2.3785, 0), Vector(-2.6693, -2.1528, 0), Vector(-2.8429, -1.9792, 0), Vector(-3.0078, -1.9792, 0)], [3, 1, 3], [0, 1, 2], False, 2, [1, 1, 1, 1], False),
    Part.BSplineCurve([Vector(-1.7144, -3.7066, 0), Vector(-2.3741, -3.2465, 0), Vector(-2.6085, -2.3785, 0)], [3, 3], [0, 1], False, 2, [1, 1, 1], False),
    Part.BSplineCurve([Vector(-0.5686, -4.1667, 0), Vector(-1.1936, -4.0799, 0), Vector(-1.7144, -3.7066, 0)], [3, 3], [0, 1], False, 2, [1, 1, 1], False),
    Part.LineSegment(Vector(-0.5686, -4.1667, 0), Vector(-0.204, -5, 0)),
], False)
sketch4.addConstraint([
    Sketcher.Constraint("Block", 8),
    Sketcher.Constraint("Block", 9),
    Sketcher.Constraint("Block", 10),
    Sketcher.Constraint("Block", 11),
    Sketcher.Constraint("Block", 15),
    Sketcher.Constraint("Block", 16),
    Sketcher.Constraint("Block", 17),
    Sketcher.Constraint("Block", 18),
    Sketcher.Constraint("Coincident", 0, 2, 1, 1),
    Sketcher.Constraint("Coincident", 1, 2, 2, 1),
    Sketcher.Constraint("Coincident", 2, 2, 3, 1),
    Sketcher.Constraint("Coincident", 3, 2, 4, 1),
    Sketcher.Constraint("Coincident", 4, 2, 5, 1),
    Sketcher.Constraint("Coincident", 5, 2, 0, 1),
    Sketcher.Constraint("Coincident", 6, 2, 7, 1),
    Sketcher.Constraint("Coincident", 7, 2, 8, 2),
    Sketcher.Constraint("Coincident", 11, 1, 12, 1),
    Sketcher.Constraint("Coincident", 12, 2, 6, 1),
    Sketcher.Constraint("Coincident", 13, 2, 14, 1),
    Sketcher.Constraint("Coincident", 14, 2, 15, 2),
    Sketcher.Constraint("Coincident", 18, 1, 19, 1),
    Sketcher.Constraint("Coincident", 19, 2, 13, 1),
    Sketcher.Constraint("Vertical", 0),
    Sketcher.Constraint("Horizontal", 1),
    Sketcher.Constraint("Vertical", 3),
    Sketcher.Constraint("Horizontal", 4),
    Sketcher.Constraint("Horizontal", 6),
    Sketcher.Constraint("Vertical", 7),
    Sketcher.Constraint("Horizontal", 13),
    Sketcher.Constraint("Vertical", 14),
    Sketcher.Constraint("DistanceY", 1, 2, 3, 2, 10.0),
    Sketcher.Constraint("DistanceY", 0, 2, 6, 2, 10.0),
    Sketcher.Constraint("DistanceY", 13, 2, 3, 2, 10.0),
    Sketcher.Constraint("DistanceY", 0, 2, -1, 1, 5.0),
    Sketcher.Constraint("DistanceX", 4, 1, 4, 2, 3.203),
    Sketcher.Constraint("DistanceX", 13, 2, 13, 1, 3.177),
    Sketcher.Constraint("DistanceY", 0, 2, 0, 1, 0.842),
    Sketcher.Constraint("DistanceX", 1, 2, 1, 1, 3.1857),
    Sketcher.Constraint("DistanceX", 6, 1, 6, 2, 3.4288),
    Sketcher.Constraint("DistanceY", 3, 1, 3, 2, 0.7292),
    Sketcher.Constraint("DistanceX", -1, 1, 0, 2, 3.624),
    Sketcher.Constraint("DistanceX", 2, 2, -1, 1, 3.624),
])
pocket3 = body.newObject("PartDesign::Pocket", "Pocket002")
pocket3.Profile = sketch4
pocket3.setExpression("Length", "Params.pocket3_length")
pocket3.Reversed = True

doc.recompute()
